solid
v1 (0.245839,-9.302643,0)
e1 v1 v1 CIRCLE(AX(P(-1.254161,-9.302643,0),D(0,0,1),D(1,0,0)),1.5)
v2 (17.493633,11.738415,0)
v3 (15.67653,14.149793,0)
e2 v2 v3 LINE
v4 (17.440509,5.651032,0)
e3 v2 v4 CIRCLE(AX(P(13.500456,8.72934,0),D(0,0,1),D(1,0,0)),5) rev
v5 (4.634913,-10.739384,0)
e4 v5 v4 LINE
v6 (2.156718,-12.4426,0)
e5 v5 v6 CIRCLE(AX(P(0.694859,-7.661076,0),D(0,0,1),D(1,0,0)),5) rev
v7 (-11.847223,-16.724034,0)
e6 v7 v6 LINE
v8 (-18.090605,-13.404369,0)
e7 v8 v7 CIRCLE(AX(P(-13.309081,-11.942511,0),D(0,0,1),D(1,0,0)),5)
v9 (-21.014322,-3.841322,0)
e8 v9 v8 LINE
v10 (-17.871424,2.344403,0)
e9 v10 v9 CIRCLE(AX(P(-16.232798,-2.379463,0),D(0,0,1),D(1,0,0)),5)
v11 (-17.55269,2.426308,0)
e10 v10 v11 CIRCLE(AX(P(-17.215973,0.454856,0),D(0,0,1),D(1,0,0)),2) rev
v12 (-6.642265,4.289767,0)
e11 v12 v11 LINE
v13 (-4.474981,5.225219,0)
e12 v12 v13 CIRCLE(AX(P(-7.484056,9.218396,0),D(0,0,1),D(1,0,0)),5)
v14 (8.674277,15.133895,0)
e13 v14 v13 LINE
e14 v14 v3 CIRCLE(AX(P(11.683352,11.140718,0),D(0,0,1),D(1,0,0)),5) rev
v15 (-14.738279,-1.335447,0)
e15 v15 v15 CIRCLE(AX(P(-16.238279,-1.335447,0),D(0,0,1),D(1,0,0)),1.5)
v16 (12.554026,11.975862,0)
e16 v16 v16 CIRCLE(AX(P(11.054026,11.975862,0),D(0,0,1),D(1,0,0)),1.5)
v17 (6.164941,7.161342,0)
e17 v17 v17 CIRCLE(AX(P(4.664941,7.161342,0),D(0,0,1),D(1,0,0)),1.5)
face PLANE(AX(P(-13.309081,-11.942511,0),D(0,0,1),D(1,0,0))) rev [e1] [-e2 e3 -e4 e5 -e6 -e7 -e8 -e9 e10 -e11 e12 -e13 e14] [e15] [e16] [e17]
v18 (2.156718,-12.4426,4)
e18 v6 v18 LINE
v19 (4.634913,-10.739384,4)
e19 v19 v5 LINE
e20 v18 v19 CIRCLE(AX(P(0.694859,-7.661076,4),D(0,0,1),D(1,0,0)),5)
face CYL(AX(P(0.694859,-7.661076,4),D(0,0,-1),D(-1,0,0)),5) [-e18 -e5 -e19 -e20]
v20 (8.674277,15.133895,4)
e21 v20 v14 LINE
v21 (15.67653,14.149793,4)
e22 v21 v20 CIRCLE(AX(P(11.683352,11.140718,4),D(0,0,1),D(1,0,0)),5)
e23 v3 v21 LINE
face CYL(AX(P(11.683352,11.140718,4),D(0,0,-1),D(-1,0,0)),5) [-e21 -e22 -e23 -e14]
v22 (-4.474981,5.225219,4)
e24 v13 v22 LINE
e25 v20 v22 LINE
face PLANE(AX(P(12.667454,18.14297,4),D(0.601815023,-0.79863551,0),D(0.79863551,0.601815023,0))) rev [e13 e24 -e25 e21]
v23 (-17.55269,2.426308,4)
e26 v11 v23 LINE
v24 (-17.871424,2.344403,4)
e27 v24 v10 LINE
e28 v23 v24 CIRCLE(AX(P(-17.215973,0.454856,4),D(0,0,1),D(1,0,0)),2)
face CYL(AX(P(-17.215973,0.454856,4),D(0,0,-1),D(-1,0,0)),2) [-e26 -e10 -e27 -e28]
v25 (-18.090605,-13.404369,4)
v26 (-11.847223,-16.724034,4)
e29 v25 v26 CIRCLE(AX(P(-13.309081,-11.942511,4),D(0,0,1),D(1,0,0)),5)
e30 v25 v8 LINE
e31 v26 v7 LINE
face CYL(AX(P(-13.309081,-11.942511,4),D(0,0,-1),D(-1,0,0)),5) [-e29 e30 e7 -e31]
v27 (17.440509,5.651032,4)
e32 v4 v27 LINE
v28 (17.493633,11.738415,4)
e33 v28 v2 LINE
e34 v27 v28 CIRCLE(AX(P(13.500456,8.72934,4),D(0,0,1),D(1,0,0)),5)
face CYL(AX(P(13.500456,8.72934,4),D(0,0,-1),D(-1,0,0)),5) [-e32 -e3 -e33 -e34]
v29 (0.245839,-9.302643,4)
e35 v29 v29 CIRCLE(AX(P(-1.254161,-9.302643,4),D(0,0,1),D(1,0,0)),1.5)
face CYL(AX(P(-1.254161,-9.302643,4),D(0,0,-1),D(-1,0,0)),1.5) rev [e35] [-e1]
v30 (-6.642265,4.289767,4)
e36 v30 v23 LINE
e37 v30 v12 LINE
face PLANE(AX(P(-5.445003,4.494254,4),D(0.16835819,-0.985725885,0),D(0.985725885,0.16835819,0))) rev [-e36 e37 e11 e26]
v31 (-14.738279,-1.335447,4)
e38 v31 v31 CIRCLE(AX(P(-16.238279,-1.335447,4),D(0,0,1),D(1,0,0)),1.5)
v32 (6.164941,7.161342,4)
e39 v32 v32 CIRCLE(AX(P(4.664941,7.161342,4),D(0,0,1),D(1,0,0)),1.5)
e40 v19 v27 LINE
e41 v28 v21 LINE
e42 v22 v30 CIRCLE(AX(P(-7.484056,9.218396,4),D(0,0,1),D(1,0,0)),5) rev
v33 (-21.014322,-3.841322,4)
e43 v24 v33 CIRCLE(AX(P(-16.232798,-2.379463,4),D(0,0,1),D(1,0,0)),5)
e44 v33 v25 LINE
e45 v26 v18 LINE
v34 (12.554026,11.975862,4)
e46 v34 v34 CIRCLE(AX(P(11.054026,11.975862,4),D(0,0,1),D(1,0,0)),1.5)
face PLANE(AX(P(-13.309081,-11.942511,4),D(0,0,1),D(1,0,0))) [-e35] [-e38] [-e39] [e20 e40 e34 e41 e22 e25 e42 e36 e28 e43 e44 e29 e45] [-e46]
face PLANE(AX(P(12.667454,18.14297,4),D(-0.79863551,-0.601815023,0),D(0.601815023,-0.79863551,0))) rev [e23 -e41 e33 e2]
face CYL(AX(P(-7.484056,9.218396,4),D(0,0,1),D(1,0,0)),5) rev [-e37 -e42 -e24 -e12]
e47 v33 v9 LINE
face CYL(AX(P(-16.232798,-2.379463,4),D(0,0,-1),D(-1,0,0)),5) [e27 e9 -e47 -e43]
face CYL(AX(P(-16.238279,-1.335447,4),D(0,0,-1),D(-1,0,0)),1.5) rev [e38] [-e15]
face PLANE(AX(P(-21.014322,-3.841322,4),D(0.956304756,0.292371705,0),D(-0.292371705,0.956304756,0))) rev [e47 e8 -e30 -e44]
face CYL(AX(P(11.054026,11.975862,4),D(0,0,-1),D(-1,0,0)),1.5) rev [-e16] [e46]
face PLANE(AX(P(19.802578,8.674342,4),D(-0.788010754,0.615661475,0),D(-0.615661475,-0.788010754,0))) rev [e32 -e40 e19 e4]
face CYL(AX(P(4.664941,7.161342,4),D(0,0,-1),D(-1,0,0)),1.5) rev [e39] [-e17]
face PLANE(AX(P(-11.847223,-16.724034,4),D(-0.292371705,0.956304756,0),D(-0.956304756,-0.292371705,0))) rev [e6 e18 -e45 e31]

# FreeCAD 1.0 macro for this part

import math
import FreeCAD as App
import Part
import Sketcher

V = App.Vector
Q = App.Units.Quantity


def edges_at(feature, points):
    """Names of the edges that pass closest to the given points."""
    edges = feature.Shape.Edges
    near = lambda p: min(range(len(edges)), key=lambda i: edges[i].distToShape(Part.Vertex(*p))[0])
    return sorted({f"Edge{near(p) + 1}" for p in points})


def add_polygon(sketch, points):
    """Adds a closed chain of lines whose ends are joined by coincident constraints."""
    first, n = sketch.GeometryCount, len(points)
    for a, b in zip(points, points[1:] + points[:1]):
        sketch.addGeometry(Part.LineSegment(App.Vector(*a, 0), App.Vector(*b, 0)), False)
    for i in range(n):
        sketch.addConstraint(Sketcher.Constraint("Coincident", first + i, 2, first + (i + 1) % n, 1))

doc = App.newDocument("Part")
params = doc.addObject("Spreadsheet::Sheet", "Params")
for row, (alias, value) in enumerate([
    ("sketch1_diameter", "3 mm"),
    ("sketch1_radius", "5 mm"),
    ("sketch1_length", "10 mm"),
    ("pad1_length", "4 mm"),
    ("fillet_radius", "5 mm"),
    ("sketch2_length", "16 mm"),
    ("fillet2_radius", "5 mm"),
    ("fillet3_radius", "2 mm"),
], start=1):
    params.set(f"A{row}", alias)
    params.set(f"B{row}", "=" + value)
    params.setAlias(f"B{row}", alias)

body = doc.addObject("PartDesign::Body", "Body")

sketch1 = doc.addObject("Sketcher::SketchObject", "Sketch")
body.addObject(sketch1)
sketch1.AttachmentSupport = (doc.XY_Plane, [""])
sketch1.MapMode = "FlatFace"
sketch1.addGeometry(Part.LineSegment(V(12.7, 18.1, 0), V(-5.4, 4.5, 0)), False)
sketch1.addGeometry(Part.LineSegment(V(-5.4, 4.5, 0), V(-17.7, 2.4, 0)), False)
sketch1.addGeometry(Part.ArcOfCircle(Part.Circle(V(-16.2, -2.4, 0), V(0, 0, 1), 5), math.radians(107), math.radians(197)), False)
sketch1.addGeometry(Part.LineSegment(V(-21, -3.8, 0), V(-18.1, -13.4, 0)), False)
sketch1.addGeometry(Part.ArcOfCircle(Part.Circle(V(-13.3, -11.9, 0), V(0, 0, 1), 5), math.radians(-163), math.radians(-73)), False)
sketch1.addGeometry(Part.LineSegment(V(-11.8, -16.7, 0), V(29.4, -4.1, 0)), False)
sketch1.addGeometry(Part.LineSegment(V(29.4, -4.1, 0), V(12.7, 18.1, 0)), False)
sketch1.addGeometry(Part.Circle(V(-16.2, -1.3, 0), V(0, 0, 1), 1.5), False)
sketch1.addGeometry(Part.Circle(V(-1.3, -9.3, 0), V(0, 0, 1), 1.5), False)
sketch1.addGeometry(Part.Circle(V(4.7, 7.2, 0), V(0, 0, 1), 1.5), False)
sketch1.addGeometry(Part.Circle(V(11.1, 12, 0), V(0, 0, 1), 1.5), False)
sketch1.addConstraint(Sketcher.Constraint("Coincident", 0, 2, 1, 1))
sketch1.addConstraint(Sketcher.Constraint("Coincident", 1, 2, 2, 1))
sketch1.addConstraint(Sketcher.Constraint("Tangent", 2, 2, 3, 1))
sketch1.addConstraint(Sketcher.Constraint("Tangent", 3, 2, 4, 1))
sketch1.addConstraint(Sketcher.Constraint("Tangent", 4, 2, 5, 1))
sketch1.addConstraint(Sketcher.Constraint("Coincident", 5, 2, 6, 1))
sketch1.addConstraint(Sketcher.Constraint("Coincident", 6, 2, 0, 1))
sketch1.addConstraint(Sketcher.Constraint("Equal", 2, 4))
sketch1.addConstraint(Sketcher.Constraint("Equal", 7, 8))
sketch1.addConstraint(Sketcher.Constraint("Equal", 8, 9))
sketch1.addConstraint(Sketcher.Constraint("Equal", 9, 10))
sketch1.addConstraint(Sketcher.Constraint("Perpendicular", 3, 5))
sketch1.addConstraint(Sketcher.Constraint("Perpendicular", 0, 6))
sketch1.addConstraint(Sketcher.Constraint("Diameter", 7, Q("3 mm")))
sketch1.addConstraint(Sketcher.Constraint("Radius", 2, Q("5 mm")))
sketch1.addConstraint(Sketcher.Constraint("Angle", 0, Q("-143 deg")))
sketch1.addConstraint(Sketcher.Constraint("Angle", 3, Q("-73 deg")))
sketch1.addConstraint(Sketcher.Constraint("Distance", 3, Q("10 mm")))
sketch1.addConstraint(Sketcher.Constraint("DistanceX", 2, 3, -1, 1, Q("16.232798 mm")))
sketch1.addConstraint(Sketcher.Constraint("DistanceY", 7, 3, 0, 2, Q("5.829701 mm")))
sketch1.addConstraint(Sketcher.Constraint("Distance", 1, Q("12.427038 mm")))
sketch1.addConstraint(Sketcher.Constraint("DistanceY", 4, 3, -1, 1, Q("11.942511 mm")))
sketch1.addConstraint(Sketcher.Constraint("DistanceX", 7, 3, -1, 1, Q("16.238279 mm")))
sketch1.addConstraint(Sketcher.Constraint("DistanceX", 8, 3, -1, 1, Q("1.254161 mm")))
sketch1.addConstraint(Sketcher.Constraint("DistanceX", -1, 1, 9, 3, Q("4.664941 mm")))
sketch1.addConstraint(Sketcher.Constraint("DistanceY", -1, 1, 1, 2, Q("2.402061 mm")))
sketch1.addConstraint(Sketcher.Constraint("DistanceX", -1, 1, 5, 2, Q("29.431618 mm")))
sketch1.addConstraint(Sketcher.Constraint("DistanceY", -1, 1, 6, 2, Q("18.14297 mm")))
sketch1.addConstraint(Sketcher.Constraint("DistanceY", 8, 3, 2, 3, Q("6.92318 mm")))
sketch1.addConstraint(Sketcher.Constraint("DistanceY", 7, 3, 9, 3, Q("8.496789 mm")))
sketch1.addConstraint(Sketcher.Constraint("DistanceY", 9, 3, 10, 3, Q("4.81452 mm")))
sketch1.addConstraint(Sketcher.Constraint("DistanceX", 0, 2, 10, 3, Q("16.499029 mm")))
sketch1.setExpression("Constraints[13]", "Params.sketch1_diameter")
sketch1.setExpression("Constraints[14]", "Params.sketch1_radius")
sketch1.setExpression("Constraints[17]", "Params.sketch1_length")
pad1 = doc.addObject("PartDesign::Pad", "Pad")
body.addObject(pad1)
pad1.Profile = sketch1
pad1.setExpression("Length", "Params.pad1_length")
doc.recompute()

fillet = doc.addObject("PartDesign::Fillet", "Fillet")
body.addObject(fillet)
fillet.Base = (pad1, edges_at(pad1, [(-5.445, 4.494, 2), (12.667, 18.143, 2)]))
fillet.setExpression("Radius", "Params.fillet_radius")

sketch2 = doc.addObject("Sketcher::SketchObject", "Sketch001")
body.addObject(sketch2)
sketch2.AttachmentSupport = (doc.XY_Plane, [""])
sketch2.MapMode = "FlatFace"
add_polygon(sketch2, [(4, -12), (20, 9), (29, -4)])
sketch2.addConstraint(Sketcher.Constraint("Angle", 0, Q("52 deg")))
sketch2.addConstraint(Sketcher.Constraint("Angle", 1, Q("-53 deg")))
sketch2.addConstraint(Sketcher.Constraint("Angle", 2, Q("-163 deg")))
sketch2.addConstraint(Sketcher.Constraint("Distance", 1, Q("16 mm")))
sketch2.addConstraint(Sketcher.Constraint("DistanceY", -1, 1, 0, 2, Q("8.674342 mm")))
sketch2.addConstraint(Sketcher.Constraint("DistanceX", -1, 1, 1, 2, Q("29.431618 mm")))
sketch2.setExpression("Constraints[6]", "Params.sketch2_length")
pocket1 = doc.addObject("PartDesign::Pocket", "Pocket")
body.addObject(pocket1)
pocket1.Profile = sketch2
pocket1.Type = "ThroughAll"
pocket1.Reversed = True
doc.recompute()

fillet2 = doc.addObject("PartDesign::Fillet", "Fillet001")
body.addObject(fillet2)
fillet2.Base = (pocket1, edges_at(pocket1, [(19.803, 8.674, 2), (3.664, -11.982, 2)]))
fillet2.setExpression("Radius", "Params.fillet2_radius")
doc.recompute()

fillet3 = doc.addObject("PartDesign::Fillet", "Fillet002")
body.addObject(fillet3)
fillet3.Base = (fillet2, edges_at(fillet2, [(-17.695, 2.402, 2)]))
fillet3.setExpression("Radius", "Params.fillet3_radius")

doc.recompute()
